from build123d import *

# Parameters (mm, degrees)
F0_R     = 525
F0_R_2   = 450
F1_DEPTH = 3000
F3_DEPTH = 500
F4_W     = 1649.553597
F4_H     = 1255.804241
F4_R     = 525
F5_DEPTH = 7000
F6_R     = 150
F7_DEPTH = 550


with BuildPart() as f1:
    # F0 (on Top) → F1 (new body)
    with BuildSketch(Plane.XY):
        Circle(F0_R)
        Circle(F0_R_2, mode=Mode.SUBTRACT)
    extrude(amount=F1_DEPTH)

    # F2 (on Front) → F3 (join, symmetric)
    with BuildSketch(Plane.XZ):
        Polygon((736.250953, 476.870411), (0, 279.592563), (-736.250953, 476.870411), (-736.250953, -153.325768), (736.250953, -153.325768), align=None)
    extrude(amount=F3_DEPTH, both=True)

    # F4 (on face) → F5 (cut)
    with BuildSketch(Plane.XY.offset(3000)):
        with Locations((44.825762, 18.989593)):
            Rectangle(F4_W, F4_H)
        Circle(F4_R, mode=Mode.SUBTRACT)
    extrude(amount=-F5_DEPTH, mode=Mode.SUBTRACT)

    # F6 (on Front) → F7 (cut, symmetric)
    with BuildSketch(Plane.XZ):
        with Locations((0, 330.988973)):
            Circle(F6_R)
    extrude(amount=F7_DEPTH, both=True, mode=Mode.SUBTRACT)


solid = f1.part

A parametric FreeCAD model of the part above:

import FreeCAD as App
import Part
import Sketcher

V = App.Vector
Q = App.Units.Quantity


def add_polygon(sketch, points):
    """Adds a closed chain of lines whose ends are joined by coincident constraints."""
    first, n = sketch.GeometryCount, len(points)
    for a, b in zip(points, points[1:] + points[:1]):
        sketch.addGeometry(Part.LineSegment(App.Vector(*a, 0), App.Vector(*b, 0)), False)
    for i in range(n):
        sketch.addConstraint(Sketcher.Constraint("Coincident", first + i, 2, first + (i + 1) % n, 1))

doc = App.newDocument("Part")
body = doc.addObject("PartDesign::Body", "Body")

# Sketch on XY plane
sketch1 = body.newObject("Sketcher::SketchObject", "Sketch")
sketch1.AttachmentSupport = (doc.getObject("XY_Plane"), [""])
sketch1.MapMode = "FlatFace"
sketch1.addGeometry(Part.Circle(V(0, 0, 0), V(0, 0, 1), 525), False)
sketch1.addGeometry(Part.Circle(V(0, 0, 0), V(0, 0, 1), 450), False)
sketch1.addConstraint(Sketcher.Constraint("Coincident", 0, 3, -1, 1))
sketch1.addConstraint(Sketcher.Constraint("Coincident", 1, 3, -1, 1))
sketch1.addConstraint(Sketcher.Constraint("Diameter", 0, Q("1050 mm")))
sketch1.addConstraint(Sketcher.Constraint("Diameter", 1, Q("900 mm")))
pad1 = body.newObject("PartDesign::Pad", "Pad")
pad1.Profile = sketch1
pad1.Length = 3000

# Sketch on XZ plane
sketch2 = body.newObject("Sketcher::SketchObject", "Sketch001")
sketch2.AttachmentSupport = (doc.getObject("XZ_Plane"), [""])
sketch2.MapMode = "FlatFace"
add_polygon(sketch2, [(736, 477), (0, 280), (-736, 477), (-736, -153), (736, -153)])  # lines 0-4
sketch2.addConstraint(Sketcher.Constraint("Vertical", 2))
sketch2.addConstraint(Sketcher.Constraint("Horizontal", 3))
sketch2.addConstraint(Sketcher.Constraint("Vertical", 4))
sketch2.addConstraint(Sketcher.Constraint("Symmetric", 1, 2, 4, 2, -2))
sketch2.addConstraint(Sketcher.Constraint("PointOnObject", 0, 2, -2))
sketch2.addConstraint(Sketcher.Constraint("Angle", 0, Q("-165 deg")))
sketch2.addConstraint(Sketcher.Constraint("DistanceY", 2, 2, 2, 1, Q("630.196179 mm")))
sketch2.addConstraint(Sketcher.Constraint("DistanceX", 3, 1, 3, 2, Q("1472.501906 mm")))
sketch2.addConstraint(Sketcher.Constraint("DistanceY", -1, 1, 1, 2, Q("476.870411 mm")))
pad2 = body.newObject("PartDesign::Pad", "Pad001")
pad2.Profile = sketch2
pad2.Length = 1000
pad2.Midplane = True

# Sketch on XY plane
sketch3 = body.newObject("Sketcher::SketchObject", "Sketch002")
sketch3.AttachmentSupport = (doc.getObject("XY_Plane"), [""])
sketch3.MapMode = "FlatFace"
sketch3.AttachmentOffset = App.Placement(V(0, 0, 3000), App.Rotation())
add_polygon(sketch3, [(-780, 647), (-780, -609), (870, -609), (870, 647)])  # lines 0-3
sketch3.addGeometry(Part.Circle(V(0, 0, 0), V(0, 0, 1), 525), False)  # 4
sketch3.addConstraint(Sketcher.Constraint("Vertical", 0))
sketch3.addConstraint(Sketcher.Constraint("Horizontal", 1))
sketch3.addConstraint(Sketcher.Constraint("Vertical", 2))
sketch3.addConstraint(Sketcher.Constraint("Horizontal", 3))
sketch3.addConstraint(Sketcher.Constraint("Coincident", 4, 3, -1, 1))
sketch3.addConstraint(Sketcher.Constraint("Diameter", 4, Q("1050 mm")))
sketch3.addConstraint(Sketcher.Constraint("DistanceY", 0, 2, 0, 1, Q("1255.804241 mm")))
sketch3.addConstraint(Sketcher.Constraint("DistanceX", 1, 1, 1, 2, Q("1649.553597 mm")))
sketch3.addConstraint(Sketcher.Constraint("DistanceX", -1, 1, 1, 2, Q("869.60256 mm")))
sketch3.addConstraint(Sketcher.Constraint("DistanceY", 0, 2, -1, 1, Q("608.912528 mm")))
pocket1 = body.newObject("PartDesign::Pocket", "Pocket")
pocket1.Profile = sketch3
pocket1.Length = 7000

# Sketch on XZ plane
sketch4 = body.newObject("Sketcher::SketchObject", "Sketch003")
sketch4.AttachmentSupport = (doc.getObject("XZ_Plane"), [""])
sketch4.MapMode = "FlatFace"
sketch4.addGeometry(Part.Circle(V(0, 331, 0), V(0, 0, 1), 150), False)
sketch4.addConstraint(Sketcher.Constraint("PointOnObject", 0, 3, -2))
sketch4.addConstraint(Sketcher.Constraint("Diameter", 0, Q("300 mm")))
sketch4.addConstraint(Sketcher.Constraint("DistanceY", -1, 1, 0, 3, Q("330.988973 mm")))
pocket2 = body.newObject("PartDesign::Pocket", "Pocket001")
pocket2.Profile = sketch4
pocket2.Length = 1100
pocket2.Midplane = True

doc.recompute()
